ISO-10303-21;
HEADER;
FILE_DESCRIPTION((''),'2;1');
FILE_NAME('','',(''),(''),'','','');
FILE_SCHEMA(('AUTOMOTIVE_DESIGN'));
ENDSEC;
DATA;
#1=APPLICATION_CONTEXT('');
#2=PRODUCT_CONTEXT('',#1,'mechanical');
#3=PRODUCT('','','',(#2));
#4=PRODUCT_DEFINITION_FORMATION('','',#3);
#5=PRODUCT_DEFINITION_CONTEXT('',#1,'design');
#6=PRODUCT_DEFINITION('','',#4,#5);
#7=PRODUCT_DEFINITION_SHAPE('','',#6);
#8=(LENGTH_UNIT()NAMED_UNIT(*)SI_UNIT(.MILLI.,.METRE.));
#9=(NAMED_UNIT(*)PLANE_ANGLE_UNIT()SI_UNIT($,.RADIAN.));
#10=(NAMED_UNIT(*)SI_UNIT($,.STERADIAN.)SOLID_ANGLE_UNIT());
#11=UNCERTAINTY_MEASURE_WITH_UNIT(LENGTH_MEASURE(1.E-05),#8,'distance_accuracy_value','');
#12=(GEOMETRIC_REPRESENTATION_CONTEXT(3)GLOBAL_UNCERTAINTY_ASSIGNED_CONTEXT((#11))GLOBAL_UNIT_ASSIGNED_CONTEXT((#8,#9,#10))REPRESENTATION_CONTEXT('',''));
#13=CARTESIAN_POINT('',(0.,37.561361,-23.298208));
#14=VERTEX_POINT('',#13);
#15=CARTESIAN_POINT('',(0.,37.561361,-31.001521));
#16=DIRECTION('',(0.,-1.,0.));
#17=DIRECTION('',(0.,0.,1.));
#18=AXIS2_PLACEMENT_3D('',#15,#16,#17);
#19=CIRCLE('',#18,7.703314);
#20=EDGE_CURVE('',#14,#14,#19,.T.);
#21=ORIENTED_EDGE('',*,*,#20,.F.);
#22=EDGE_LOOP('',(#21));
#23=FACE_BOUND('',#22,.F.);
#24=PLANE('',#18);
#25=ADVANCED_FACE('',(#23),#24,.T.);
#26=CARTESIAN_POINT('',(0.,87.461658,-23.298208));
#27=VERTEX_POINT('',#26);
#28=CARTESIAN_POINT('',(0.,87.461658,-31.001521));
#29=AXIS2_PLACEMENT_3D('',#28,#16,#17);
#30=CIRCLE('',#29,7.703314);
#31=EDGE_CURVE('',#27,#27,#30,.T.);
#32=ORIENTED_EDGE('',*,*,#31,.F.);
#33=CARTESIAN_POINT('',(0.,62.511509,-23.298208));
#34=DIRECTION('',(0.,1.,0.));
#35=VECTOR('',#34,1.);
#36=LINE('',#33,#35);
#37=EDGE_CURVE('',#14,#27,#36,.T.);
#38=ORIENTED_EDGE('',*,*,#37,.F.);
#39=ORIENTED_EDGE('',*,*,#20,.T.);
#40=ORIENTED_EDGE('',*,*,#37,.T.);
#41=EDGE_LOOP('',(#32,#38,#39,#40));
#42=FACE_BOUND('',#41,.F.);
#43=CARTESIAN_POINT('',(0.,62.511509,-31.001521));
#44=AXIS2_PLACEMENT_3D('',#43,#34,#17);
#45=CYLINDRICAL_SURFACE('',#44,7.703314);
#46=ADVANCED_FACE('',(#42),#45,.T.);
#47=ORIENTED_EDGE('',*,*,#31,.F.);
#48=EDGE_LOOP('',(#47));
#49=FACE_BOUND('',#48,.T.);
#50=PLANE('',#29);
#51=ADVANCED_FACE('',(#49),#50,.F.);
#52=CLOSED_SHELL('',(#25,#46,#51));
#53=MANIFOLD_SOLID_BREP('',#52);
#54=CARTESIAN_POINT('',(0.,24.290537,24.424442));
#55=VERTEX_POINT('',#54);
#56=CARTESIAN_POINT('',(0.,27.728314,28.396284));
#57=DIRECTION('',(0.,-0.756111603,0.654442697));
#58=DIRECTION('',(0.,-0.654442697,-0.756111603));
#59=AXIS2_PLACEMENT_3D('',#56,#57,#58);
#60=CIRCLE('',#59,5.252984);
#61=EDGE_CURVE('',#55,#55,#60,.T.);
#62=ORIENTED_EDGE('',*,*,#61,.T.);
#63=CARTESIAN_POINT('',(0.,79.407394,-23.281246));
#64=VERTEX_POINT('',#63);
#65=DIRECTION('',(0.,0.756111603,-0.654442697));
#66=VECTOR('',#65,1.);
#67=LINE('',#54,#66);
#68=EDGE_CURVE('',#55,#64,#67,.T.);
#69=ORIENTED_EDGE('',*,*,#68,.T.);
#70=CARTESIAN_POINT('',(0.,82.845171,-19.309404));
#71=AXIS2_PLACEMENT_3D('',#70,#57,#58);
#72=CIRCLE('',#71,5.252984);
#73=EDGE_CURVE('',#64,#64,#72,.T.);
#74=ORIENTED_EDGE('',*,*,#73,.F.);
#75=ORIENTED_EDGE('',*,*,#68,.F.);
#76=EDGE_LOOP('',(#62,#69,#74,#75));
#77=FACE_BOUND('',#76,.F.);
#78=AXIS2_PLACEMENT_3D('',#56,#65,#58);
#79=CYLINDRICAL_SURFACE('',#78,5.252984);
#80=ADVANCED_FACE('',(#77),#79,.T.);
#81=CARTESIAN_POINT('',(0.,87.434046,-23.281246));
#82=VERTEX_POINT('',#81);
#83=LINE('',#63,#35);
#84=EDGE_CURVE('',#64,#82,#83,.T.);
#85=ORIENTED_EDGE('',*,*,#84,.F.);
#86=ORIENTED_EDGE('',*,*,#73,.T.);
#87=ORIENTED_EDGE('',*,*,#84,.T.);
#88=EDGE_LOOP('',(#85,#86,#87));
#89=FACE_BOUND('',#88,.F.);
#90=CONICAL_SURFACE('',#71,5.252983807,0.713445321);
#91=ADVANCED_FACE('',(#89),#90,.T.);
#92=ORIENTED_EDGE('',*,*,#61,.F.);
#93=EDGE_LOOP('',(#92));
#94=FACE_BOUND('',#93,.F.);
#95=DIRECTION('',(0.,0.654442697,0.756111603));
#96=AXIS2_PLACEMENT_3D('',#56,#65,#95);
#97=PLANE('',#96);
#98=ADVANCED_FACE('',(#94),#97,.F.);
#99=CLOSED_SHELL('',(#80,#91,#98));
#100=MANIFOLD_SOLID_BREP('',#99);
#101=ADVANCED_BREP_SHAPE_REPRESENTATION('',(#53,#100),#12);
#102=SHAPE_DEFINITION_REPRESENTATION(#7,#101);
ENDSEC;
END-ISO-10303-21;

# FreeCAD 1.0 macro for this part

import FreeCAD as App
import Part
import Sketcher

V = App.Vector
Q = App.Units.Quantity


def add_polygon(sketch, points):
    """Adds a closed chain of lines whose ends are joined by coincident constraints."""
    first, n = sketch.GeometryCount, len(points)
    for a, b in zip(points, points[1:] + points[:1]):
        sketch.addGeometry(Part.LineSegment(App.Vector(*a, 0), App.Vector(*b, 0)), False)
    for i in range(n):
        sketch.addConstraint(Sketcher.Constraint("Coincident", first + i, 2, first + (i + 1) % n, 1))

doc = App.newDocument("Part")
body = doc.addObject("PartDesign::Body", "Body")

# Sketch on YZ plane
sketch1 = body.newObject("Sketcher::SketchObject", "Sketch")
sketch1.AttachmentSupport = (doc.getObject("YZ_Plane"), [""])
sketch1.MapMode = "FlatFace"
add_polygon(sketch1, [(38, -23), (38, -31), (87, -31), (87, -23)])  # lines 0-3
sketch1.addGeometry(Part.LineSegment(V(87, -31, 0), V(38, -31, 0)), True)  # axis
sketch1.addConstraint([
    Sketcher.Constraint("Vertical", 0),
    Sketcher.Constraint("Horizontal", 1),
    Sketcher.Constraint("Vertical", 2),
    Sketcher.Constraint("Horizontal", 3),
    Sketcher.Constraint("Horizontal", 4),
    Sketcher.Constraint("Coincident", 4, 1, 1, 2),
    Sketcher.Constraint("Vertical", 3, 2, 4, 2),
    Sketcher.Constraint("DistanceX", 1, 1, 1, 2, Q("49.900297 mm")),
    Sketcher.Constraint("DistanceY", 0, 2, 0, 1, Q("7.703314 mm")),
    Sketcher.Constraint("DistanceX", -1, 1, 0, 2, Q("37.561361 mm")),
    Sketcher.Constraint("DistanceY", 0, 2, -1, 1, Q("31.001521 mm")),
])
revolution = body.newObject("PartDesign::Revolution", "Revolution")
revolution.Profile = sketch1
revolution.ReferenceAxis = (sketch1, ["Axis0"])
revolution.Angle = 360
body2 = doc.addObject("PartDesign::Body", "Body001")

# Sketch on YZ plane
sketch2 = body2.newObject("Sketcher::SketchObject", "Sketch001")
sketch2.AttachmentSupport = (doc.getObject("YZ_Plane001"), [""])
sketch2.MapMode = "FlatFace"
add_polygon(sketch2, [(79, -23), (87, -23), (28, 28), (24, 24)])  # lines 0-3
sketch2.addGeometry(Part.LineSegment(V(87, -23, 0), V(28, 28, 0)), True)  # axis
sketch2.addConstraint([
    Sketcher.Constraint("Horizontal", 0),
    Sketcher.Constraint("Coincident", 4, 1, 0, 2),
    Sketcher.Constraint("Coincident", 4, 2, 1, 2),
    Sketcher.Constraint("Perpendicular", 1, 2),
    Sketcher.Constraint("Perpendicular", 2, 3),
    Sketcher.Constraint("Distance", 1, Q("78.96418 mm")),
    Sketcher.Constraint("DistanceX", 0, 1, 0, 2, Q("8.026652 mm")),
    Sketcher.Constraint("DistanceY", 0, 2, 1, 2, Q("51.677531 mm")),
    Sketcher.Constraint("DistanceX", -1, 1, 0, 2, Q("87.434046 mm")),
    Sketcher.Constraint("DistanceY", 0, 2, -1, 1, Q("23.281246 mm")),
])
revolution2 = body2.newObject("PartDesign::Revolution", "Revolution001")
revolution2.Profile = sketch2
revolution2.ReferenceAxis = (sketch2, ["Axis0"])
revolution2.Angle = 360

doc.recompute()
